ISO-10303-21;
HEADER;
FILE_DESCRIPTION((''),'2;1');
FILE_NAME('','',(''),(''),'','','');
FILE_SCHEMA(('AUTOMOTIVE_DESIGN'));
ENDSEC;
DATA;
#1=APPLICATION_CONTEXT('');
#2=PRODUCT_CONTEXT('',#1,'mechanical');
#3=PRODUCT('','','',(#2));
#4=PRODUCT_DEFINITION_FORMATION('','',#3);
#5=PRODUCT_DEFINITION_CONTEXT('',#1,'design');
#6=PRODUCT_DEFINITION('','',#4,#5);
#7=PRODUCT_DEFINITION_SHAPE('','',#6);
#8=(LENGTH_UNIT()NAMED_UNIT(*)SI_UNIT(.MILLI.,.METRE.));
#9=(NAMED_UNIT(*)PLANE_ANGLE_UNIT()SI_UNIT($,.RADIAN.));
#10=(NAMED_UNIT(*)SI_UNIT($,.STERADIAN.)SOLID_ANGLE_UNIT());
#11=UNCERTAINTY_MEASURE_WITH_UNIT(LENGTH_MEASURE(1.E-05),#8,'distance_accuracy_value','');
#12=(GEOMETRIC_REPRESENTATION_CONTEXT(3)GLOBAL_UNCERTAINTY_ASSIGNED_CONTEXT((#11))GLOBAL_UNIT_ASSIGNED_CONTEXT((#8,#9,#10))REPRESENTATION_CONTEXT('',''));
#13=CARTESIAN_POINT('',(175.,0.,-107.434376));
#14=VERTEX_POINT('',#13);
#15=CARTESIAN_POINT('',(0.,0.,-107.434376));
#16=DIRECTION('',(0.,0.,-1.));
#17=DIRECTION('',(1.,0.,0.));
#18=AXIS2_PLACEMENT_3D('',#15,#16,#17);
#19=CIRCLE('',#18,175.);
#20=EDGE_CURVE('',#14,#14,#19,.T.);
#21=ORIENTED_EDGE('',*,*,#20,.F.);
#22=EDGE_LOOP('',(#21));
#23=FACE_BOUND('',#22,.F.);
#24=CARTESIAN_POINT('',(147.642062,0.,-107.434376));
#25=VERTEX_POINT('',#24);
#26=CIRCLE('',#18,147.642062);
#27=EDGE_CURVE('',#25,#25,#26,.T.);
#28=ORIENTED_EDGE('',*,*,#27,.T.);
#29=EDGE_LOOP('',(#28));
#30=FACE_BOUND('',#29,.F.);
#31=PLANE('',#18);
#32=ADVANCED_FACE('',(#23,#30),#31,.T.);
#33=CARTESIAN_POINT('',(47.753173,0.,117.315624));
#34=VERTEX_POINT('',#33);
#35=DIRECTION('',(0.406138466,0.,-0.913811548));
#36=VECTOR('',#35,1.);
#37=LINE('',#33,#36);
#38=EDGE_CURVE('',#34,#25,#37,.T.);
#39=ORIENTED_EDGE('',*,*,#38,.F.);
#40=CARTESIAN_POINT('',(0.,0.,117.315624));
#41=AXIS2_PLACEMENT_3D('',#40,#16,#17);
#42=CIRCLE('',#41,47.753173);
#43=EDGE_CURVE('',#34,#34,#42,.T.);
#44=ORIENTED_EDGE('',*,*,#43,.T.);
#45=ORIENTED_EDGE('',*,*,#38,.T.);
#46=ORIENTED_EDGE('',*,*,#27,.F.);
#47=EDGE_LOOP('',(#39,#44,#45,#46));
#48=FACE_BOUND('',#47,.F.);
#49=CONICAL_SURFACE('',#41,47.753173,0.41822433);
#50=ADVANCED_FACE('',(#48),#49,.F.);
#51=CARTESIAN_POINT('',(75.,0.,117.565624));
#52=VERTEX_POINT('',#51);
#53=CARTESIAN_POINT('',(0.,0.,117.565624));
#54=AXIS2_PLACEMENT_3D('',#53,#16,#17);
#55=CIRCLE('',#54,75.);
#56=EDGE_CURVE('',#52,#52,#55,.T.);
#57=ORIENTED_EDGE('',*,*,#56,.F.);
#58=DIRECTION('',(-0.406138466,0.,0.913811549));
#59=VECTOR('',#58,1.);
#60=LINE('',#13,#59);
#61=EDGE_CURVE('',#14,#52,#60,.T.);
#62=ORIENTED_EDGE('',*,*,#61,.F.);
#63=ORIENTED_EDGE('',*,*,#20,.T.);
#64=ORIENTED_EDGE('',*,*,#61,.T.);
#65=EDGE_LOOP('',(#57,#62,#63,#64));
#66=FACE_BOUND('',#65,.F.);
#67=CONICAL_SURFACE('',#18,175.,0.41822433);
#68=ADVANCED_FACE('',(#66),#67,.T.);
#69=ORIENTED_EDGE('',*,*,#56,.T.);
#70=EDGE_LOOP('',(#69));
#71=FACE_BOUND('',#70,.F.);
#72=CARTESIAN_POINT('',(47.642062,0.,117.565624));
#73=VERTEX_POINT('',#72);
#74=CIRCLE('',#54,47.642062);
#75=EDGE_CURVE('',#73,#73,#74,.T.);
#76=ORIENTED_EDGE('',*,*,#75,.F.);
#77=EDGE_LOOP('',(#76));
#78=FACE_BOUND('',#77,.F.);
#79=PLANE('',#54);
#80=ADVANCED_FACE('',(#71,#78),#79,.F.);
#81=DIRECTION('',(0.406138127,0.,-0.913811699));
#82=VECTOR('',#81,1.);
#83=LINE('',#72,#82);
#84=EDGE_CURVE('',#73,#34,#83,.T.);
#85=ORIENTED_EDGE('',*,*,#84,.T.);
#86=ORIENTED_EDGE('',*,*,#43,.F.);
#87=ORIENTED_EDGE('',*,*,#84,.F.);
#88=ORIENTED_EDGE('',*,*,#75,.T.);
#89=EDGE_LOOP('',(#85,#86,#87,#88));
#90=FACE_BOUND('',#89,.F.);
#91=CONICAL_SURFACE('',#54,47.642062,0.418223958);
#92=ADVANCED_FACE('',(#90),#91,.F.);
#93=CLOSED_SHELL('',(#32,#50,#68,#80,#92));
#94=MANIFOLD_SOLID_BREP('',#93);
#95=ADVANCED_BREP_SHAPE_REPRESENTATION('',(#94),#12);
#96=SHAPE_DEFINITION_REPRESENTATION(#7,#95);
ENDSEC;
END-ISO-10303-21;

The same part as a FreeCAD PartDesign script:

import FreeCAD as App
import Part
import Sketcher

V = App.Vector
Q = App.Units.Quantity

doc = App.newDocument("Part")
params = doc.addObject("Spreadsheet::Sheet", "Params")
for row, (alias, value) in enumerate([
    ("revolution_angle", "360 deg"),
], start=1):
    params.set(f"A{row}", alias)
    params.set(f"B{row}", "=" + value)
    params.setAlias(f"B{row}", alias)

body = doc.addObject("PartDesign::Body", "Body")

sketch1 = doc.addObject("Sketcher::SketchObject", "Sketch")
body.addObject(sketch1)
sketch1.AttachmentSupport = (doc.XZ_Plane, [""])
sketch1.MapMode = "FlatFace"
sketch1.addGeometry(Part.LineSegment(V(75, 117.57, 0), V(47.64, 117.57, 0)), False)
sketch1.addGeometry(Part.LineSegment(V(47.64, 117.57, 0), V(47.75, 117.32, 0)), False)
sketch1.addGeometry(Part.LineSegment(V(47.75, 117.32, 0), V(147.64, -107.43, 0)), False)
sketch1.addGeometry(Part.LineSegment(V(147.64, -107.43, 0), V(175, -107.43, 0)), False)
sketch1.addGeometry(Part.LineSegment(V(175, -107.43, 0), V(75, 117.57, 0)), False)
sketch1.addConstraint(Sketcher.Constraint("Coincident", 0, 2, 1, 1))
sketch1.addConstraint(Sketcher.Constraint("Coincident", 1, 2, 2, 1))
sketch1.addConstraint(Sketcher.Constraint("Coincident", 2, 2, 3, 1))
sketch1.addConstraint(Sketcher.Constraint("Coincident", 3, 2, 4, 1))
sketch1.addConstraint(Sketcher.Constraint("Coincident", 4, 2, 0, 1))
sketch1.addConstraint(Sketcher.Constraint("Horizontal", 0))
sketch1.addConstraint(Sketcher.Constraint("Horizontal", 3))
sketch1.addConstraint(Sketcher.Constraint("Parallel", 1, 2))
sketch1.addConstraint(Sketcher.Constraint("Parallel", 2, 4))
sketch1.addConstraint(Sketcher.Constraint("DistanceX", -1, 1, 3, 2, Q("175 mm")))
sketch1.addConstraint(Sketcher.Constraint("DistanceX", -1, 1, 4, 2, Q("75 mm")))
sketch1.addConstraint(Sketcher.Constraint("DistanceY", 2, 2, 0, 2, Q("225 mm")))
sketch1.addConstraint(Sketcher.Constraint("DistanceY", 1, 2, 0, 2, Q("0.25 mm")))
sketch1.addConstraint(Sketcher.Constraint("DistanceX", 0, 2, 0, 1, Q("27.357938 mm")))
sketch1.addConstraint(Sketcher.Constraint("DistanceY", -1, 1, 0, 2, Q("117.565624 mm")))
revolution = doc.addObject("PartDesign::Revolution", "Revolution")
body.addObject(revolution)
revolution.Profile = sketch1
revolution.ReferenceAxis = (sketch1, ["V_Axis"])
revolution.setExpression("Angle", "Params.revolution_angle")

doc.recompute()
